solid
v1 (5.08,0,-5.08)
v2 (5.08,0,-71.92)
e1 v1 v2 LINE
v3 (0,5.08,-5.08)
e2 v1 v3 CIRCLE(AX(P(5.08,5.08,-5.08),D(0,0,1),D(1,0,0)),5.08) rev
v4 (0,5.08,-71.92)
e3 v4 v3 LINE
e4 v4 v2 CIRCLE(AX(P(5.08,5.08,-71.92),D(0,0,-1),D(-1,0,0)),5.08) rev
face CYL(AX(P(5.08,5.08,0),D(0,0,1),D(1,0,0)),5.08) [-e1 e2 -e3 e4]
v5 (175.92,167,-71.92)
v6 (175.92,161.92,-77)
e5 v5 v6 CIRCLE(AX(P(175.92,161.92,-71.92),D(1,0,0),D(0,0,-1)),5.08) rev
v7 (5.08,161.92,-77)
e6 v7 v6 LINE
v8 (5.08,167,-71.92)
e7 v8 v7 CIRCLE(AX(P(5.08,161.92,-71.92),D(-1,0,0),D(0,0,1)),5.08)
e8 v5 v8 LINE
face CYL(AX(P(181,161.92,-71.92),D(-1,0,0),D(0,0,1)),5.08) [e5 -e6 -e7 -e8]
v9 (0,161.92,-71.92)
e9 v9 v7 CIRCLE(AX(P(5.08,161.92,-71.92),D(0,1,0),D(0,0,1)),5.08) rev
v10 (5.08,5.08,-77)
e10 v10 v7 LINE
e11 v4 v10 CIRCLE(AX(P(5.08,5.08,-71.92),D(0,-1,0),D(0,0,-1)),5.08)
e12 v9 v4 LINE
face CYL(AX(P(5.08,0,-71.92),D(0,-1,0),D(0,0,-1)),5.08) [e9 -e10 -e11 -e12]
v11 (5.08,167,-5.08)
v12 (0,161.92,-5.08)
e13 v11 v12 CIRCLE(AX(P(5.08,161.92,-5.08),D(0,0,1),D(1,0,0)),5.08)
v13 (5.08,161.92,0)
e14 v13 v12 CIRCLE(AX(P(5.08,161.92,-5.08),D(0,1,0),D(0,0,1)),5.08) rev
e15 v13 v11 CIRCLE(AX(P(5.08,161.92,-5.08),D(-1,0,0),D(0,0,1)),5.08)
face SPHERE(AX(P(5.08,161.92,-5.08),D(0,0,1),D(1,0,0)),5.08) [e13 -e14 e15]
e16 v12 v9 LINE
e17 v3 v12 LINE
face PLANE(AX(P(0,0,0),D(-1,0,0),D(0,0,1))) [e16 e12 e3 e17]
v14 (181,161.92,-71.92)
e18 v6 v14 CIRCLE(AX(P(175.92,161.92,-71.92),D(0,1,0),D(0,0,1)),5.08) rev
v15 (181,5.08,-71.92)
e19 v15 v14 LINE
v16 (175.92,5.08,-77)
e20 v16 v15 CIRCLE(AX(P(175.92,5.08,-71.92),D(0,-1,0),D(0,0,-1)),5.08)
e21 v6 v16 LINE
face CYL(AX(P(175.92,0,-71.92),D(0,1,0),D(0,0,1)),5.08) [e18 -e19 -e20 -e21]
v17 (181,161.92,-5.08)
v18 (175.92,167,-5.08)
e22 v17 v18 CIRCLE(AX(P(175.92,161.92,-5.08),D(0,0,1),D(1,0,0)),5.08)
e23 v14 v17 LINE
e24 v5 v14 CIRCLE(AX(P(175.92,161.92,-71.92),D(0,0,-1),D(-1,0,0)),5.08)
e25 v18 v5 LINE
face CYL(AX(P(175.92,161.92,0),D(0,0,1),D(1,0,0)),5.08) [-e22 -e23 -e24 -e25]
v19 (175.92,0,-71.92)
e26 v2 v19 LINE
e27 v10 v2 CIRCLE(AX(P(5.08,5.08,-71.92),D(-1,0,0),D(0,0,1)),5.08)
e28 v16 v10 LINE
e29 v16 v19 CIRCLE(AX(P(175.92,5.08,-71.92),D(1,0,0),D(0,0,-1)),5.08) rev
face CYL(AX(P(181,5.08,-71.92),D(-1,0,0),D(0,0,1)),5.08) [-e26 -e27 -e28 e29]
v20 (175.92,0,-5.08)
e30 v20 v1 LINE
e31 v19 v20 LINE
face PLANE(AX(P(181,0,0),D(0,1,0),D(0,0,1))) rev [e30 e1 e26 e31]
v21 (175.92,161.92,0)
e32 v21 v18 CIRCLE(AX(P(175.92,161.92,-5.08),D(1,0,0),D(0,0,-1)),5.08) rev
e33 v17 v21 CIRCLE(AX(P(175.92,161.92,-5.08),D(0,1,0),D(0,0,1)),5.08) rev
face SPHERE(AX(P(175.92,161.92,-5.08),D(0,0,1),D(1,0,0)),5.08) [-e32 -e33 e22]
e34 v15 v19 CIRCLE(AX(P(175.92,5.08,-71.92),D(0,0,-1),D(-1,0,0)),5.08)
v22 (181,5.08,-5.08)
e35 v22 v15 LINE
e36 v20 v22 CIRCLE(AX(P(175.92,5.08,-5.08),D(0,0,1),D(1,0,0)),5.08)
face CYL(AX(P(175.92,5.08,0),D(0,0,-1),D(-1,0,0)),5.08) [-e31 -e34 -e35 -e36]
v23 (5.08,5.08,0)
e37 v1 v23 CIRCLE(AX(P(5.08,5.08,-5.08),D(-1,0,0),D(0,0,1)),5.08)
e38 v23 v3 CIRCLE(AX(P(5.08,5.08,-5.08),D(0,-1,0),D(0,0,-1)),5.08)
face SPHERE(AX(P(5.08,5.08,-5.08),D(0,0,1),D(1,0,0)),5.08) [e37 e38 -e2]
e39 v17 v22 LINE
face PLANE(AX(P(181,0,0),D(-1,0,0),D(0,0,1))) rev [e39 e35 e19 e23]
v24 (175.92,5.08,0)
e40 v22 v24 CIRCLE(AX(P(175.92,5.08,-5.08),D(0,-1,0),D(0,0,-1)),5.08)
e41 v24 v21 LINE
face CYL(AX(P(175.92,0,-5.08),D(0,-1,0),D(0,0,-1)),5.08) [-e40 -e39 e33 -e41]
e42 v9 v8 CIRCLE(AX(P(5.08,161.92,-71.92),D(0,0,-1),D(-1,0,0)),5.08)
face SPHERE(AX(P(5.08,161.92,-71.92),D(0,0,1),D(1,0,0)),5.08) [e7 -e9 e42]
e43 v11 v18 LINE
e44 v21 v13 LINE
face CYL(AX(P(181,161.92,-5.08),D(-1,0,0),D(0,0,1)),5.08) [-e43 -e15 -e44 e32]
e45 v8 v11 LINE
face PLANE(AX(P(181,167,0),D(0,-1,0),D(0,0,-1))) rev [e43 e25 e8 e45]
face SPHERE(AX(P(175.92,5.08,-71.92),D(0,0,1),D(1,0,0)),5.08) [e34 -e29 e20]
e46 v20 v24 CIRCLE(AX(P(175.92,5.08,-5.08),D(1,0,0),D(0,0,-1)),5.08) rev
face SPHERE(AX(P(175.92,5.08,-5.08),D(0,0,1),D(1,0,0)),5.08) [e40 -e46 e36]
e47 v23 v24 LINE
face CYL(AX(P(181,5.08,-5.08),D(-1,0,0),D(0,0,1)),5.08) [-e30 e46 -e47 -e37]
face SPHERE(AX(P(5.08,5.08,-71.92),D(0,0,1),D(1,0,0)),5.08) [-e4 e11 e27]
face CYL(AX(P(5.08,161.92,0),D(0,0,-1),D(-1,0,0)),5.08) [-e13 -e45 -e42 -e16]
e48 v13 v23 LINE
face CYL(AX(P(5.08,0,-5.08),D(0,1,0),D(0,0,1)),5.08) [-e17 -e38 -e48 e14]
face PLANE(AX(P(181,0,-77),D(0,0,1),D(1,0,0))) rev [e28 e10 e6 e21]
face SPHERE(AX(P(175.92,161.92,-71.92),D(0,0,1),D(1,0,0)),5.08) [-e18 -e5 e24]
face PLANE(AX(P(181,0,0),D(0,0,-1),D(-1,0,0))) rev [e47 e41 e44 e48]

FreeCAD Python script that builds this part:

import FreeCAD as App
import Part
import Sketcher


def add_polygon(sketch, points):
    """Adds a closed chain of lines whose ends are joined by coincident constraints."""
    first, n = sketch.GeometryCount, len(points)
    for a, b in zip(points, points[1:] + points[:1]):
        sketch.addGeometry(Part.LineSegment(App.Vector(*a, 0), App.Vector(*b, 0)), False)
    for i in range(n):
        sketch.addConstraint(Sketcher.Constraint("Coincident", first + i, 2, first + (i + 1) % n, 1))

doc = App.newDocument("Part")
body = doc.addObject("PartDesign::Body", "Body")

sketch1 = body.newObject("Sketcher::SketchObject", "Sketch")
sketch1.AttachmentSupport = (doc.getObject("YZ_Plane"), [""])
sketch1.MapMode = "FlatFace"
add_polygon(sketch1, [(167, 0), (0, 0), (0, -77), (167, -77)])
sketch1.addConstraint([
    Sketcher.Constraint("Horizontal", 0),
    Sketcher.Constraint("Vertical", 1),
    Sketcher.Constraint("Horizontal", 2),
    Sketcher.Constraint("Vertical", 3),
    Sketcher.Constraint("Coincident", 0, 2, -1, 1),
    Sketcher.Constraint("DistanceX", 0, 2, 0, 1, 167.0),
    Sketcher.Constraint("DistanceY", 1, 2, 1, 1, 77.0),
])
pad1 = body.newObject("PartDesign::Pad", "Pad")
pad1.Profile = sketch1
pad1.Length = 181
doc.recompute()

fillet = body.newObject("PartDesign::Fillet", "Fillet")
fillet.Base = (pad1, ["Edge1"])
fillet.UseAllEdges = True
fillet.Radius = 5.08

doc.recompute()
